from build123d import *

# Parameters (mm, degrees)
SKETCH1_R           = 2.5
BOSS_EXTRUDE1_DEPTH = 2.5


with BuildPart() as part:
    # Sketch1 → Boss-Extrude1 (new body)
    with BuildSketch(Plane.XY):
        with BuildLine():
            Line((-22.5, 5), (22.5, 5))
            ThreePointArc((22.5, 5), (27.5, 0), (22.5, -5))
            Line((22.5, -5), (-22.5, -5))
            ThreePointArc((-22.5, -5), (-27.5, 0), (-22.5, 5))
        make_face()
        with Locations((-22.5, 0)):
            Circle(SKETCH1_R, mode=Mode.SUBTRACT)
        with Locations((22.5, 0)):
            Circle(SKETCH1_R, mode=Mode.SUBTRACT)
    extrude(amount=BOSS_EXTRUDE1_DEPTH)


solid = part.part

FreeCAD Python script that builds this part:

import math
import FreeCAD as App
import Part
import Sketcher

doc = App.newDocument("Part")
body = doc.addObject("PartDesign::Body", "Body")

sketch1 = body.newObject("Sketcher::SketchObject", "Sketch")
sketch1.AttachmentSupport = (doc.getObject("XY_Plane"), [""])
sketch1.MapMode = "FlatFace"
sketch1.addGeometry(Part.LineSegment(App.Vector(22.5, 5, 0), App.Vector(-22.5, 5, 0)), False)
sketch1.addGeometry(Part.ArcOfCircle(Part.Circle(App.Vector(-22.5, 0, 0), App.Vector(0, 0, 1), 5), math.radians(90), math.radians(270)), False)
sketch1.addGeometry(Part.LineSegment(App.Vector(-22.5, -5, 0), App.Vector(22.5, -5, 0)), False)
sketch1.addGeometry(Part.ArcOfCircle(Part.Circle(App.Vector(22.5, 0, 0), App.Vector(0, 0, 1), 5), math.radians(-90), math.radians(90)), False)
sketch1.addGeometry(Part.Circle(App.Vector(22.5, 0, 0), App.Vector(0, 0, 1), 2.5), False)
sketch1.addGeometry(Part.Circle(App.Vector(-22.5, 0, 0), App.Vector(0, 0, 1), 2.5), False)
sketch1.addConstraint(Sketcher.Constraint("Tangent", 0, 2, 1, 1))
sketch1.addConstraint(Sketcher.Constraint("Tangent", 1, 2, 2, 1))
sketch1.addConstraint(Sketcher.Constraint("Tangent", 2, 2, 3, 1))
sketch1.addConstraint(Sketcher.Constraint("Tangent", 3, 2, 0, 1))
sketch1.addConstraint(Sketcher.Constraint("Horizontal", 0))
sketch1.addConstraint(Sketcher.Constraint("Horizontal", 2))
sketch1.addConstraint(Sketcher.Constraint("Coincident", 4, 3, 3, 3))
sketch1.addConstraint(Sketcher.Constraint("Coincident", 5, 3, 1, 3))
sketch1.addConstraint(Sketcher.Constraint("Equal", 4, 5))
sketch1.addConstraint(Sketcher.Constraint("Symmetric", 1, 3, 3, 3, -1, 1))
sketch1.addConstraint(Sketcher.Constraint("Diameter", 4, 5.0))
sketch1.addConstraint(Sketcher.Constraint("Radius", 1, 5.0))
sketch1.addConstraint(Sketcher.Constraint("DistanceX", 0, 2, 0, 1, 45.0))
pad1 = body.newObject("PartDesign::Pad", "Pad")
pad1.Profile = sketch1
pad1.Length = 2.5

doc.recompute()
